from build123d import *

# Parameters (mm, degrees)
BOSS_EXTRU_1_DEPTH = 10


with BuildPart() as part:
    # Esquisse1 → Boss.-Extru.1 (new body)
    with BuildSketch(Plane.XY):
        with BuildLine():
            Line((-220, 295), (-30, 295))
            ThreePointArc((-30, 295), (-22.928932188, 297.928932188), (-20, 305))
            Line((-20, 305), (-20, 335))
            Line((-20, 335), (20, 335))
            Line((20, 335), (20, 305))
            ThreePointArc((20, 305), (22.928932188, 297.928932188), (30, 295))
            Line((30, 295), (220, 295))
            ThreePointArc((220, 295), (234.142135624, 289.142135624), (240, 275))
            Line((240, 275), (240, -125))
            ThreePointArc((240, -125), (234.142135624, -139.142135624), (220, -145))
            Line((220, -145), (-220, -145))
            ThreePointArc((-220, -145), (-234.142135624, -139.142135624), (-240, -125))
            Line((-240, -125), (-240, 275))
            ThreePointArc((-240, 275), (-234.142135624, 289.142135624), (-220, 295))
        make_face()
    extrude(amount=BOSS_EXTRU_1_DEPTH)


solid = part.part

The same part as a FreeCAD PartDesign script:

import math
import FreeCAD as App
import Part
import Sketcher
Q = App.Units.Quantity

doc = App.newDocument("Part")
params = doc.addObject("Spreadsheet::Sheet", "Params")
for row, (alias, value) in enumerate([
    ("sketch1_radius", "20 mm"),
    ("sketch1_radius2", "10 mm"),
    ("sketch1_width", "190 mm"),
    ("sketch1_width2", "440 mm"),
    ("sketch1_height", "400 mm"),
    ("pad1_length", "10 mm"),
], start=1):
    params.set(f"A{row}", alias)
    params.set(f"B{row}", "=" + value)
    params.setAlias(f"B{row}", alias)

body = doc.addObject("PartDesign::Body", "Body")

sketch1 = doc.addObject("Sketcher::SketchObject", "Sketch")
body.addObject(sketch1)
sketch1.AttachmentSupport = (doc.XY_Plane, [""])
sketch1.MapMode = "FlatFace"
sketch1.addGeometry(Part.LineSegment(App.Vector(-30, 295, 0), App.Vector(-220, 295, 0)), False)
sketch1.addGeometry(Part.ArcOfCircle(Part.Circle(App.Vector(-220, 275, 0), App.Vector(0, 0, 1), 20), math.radians(90), math.radians(180)), False)
sketch1.addGeometry(Part.LineSegment(App.Vector(-240, 275, 0), App.Vector(-240, -125, 0)), False)
sketch1.addGeometry(Part.ArcOfCircle(Part.Circle(App.Vector(-220, -125, 0), App.Vector(0, 0, 1), 20), math.radians(180), math.radians(270)), False)
sketch1.addGeometry(Part.LineSegment(App.Vector(-220, -145, 0), App.Vector(220, -145, 0)), False)
sketch1.addGeometry(Part.ArcOfCircle(Part.Circle(App.Vector(220, -125, 0), App.Vector(0, 0, 1), 20), math.radians(-90), math.radians(0)), False)
sketch1.addGeometry(Part.LineSegment(App.Vector(240, -125, 0), App.Vector(240, 275, 0)), False)
sketch1.addGeometry(Part.ArcOfCircle(Part.Circle(App.Vector(220, 275, 0), App.Vector(0, 0, 1), 20), math.radians(0), math.radians(90)), False)
sketch1.addGeometry(Part.LineSegment(App.Vector(220, 295, 0), App.Vector(30, 295, 0)), False)
sketch1.addGeometry(Part.ArcOfCircle(Part.Circle(App.Vector(30, 305, 0), App.Vector(0, 0, 1), 10), math.radians(180), math.radians(270)), False)
sketch1.addGeometry(Part.LineSegment(App.Vector(20, 305, 0), App.Vector(20, 335, 0)), False)
sketch1.addGeometry(Part.LineSegment(App.Vector(20, 335, 0), App.Vector(-20, 335, 0)), False)
sketch1.addGeometry(Part.LineSegment(App.Vector(-20, 335, 0), App.Vector(-20, 305, 0)), False)
sketch1.addGeometry(Part.ArcOfCircle(Part.Circle(App.Vector(-30, 305, 0), App.Vector(0, 0, 1), 10), math.radians(-90), math.radians(0)), False)
sketch1.addConstraint(Sketcher.Constraint("Tangent", 0, 2, 1, 1))
sketch1.addConstraint(Sketcher.Constraint("Tangent", 1, 2, 2, 1))
sketch1.addConstraint(Sketcher.Constraint("Tangent", 2, 2, 3, 1))
sketch1.addConstraint(Sketcher.Constraint("Tangent", 3, 2, 4, 1))
sketch1.addConstraint(Sketcher.Constraint("Tangent", 4, 2, 5, 1))
sketch1.addConstraint(Sketcher.Constraint("Tangent", 5, 2, 6, 1))
sketch1.addConstraint(Sketcher.Constraint("Tangent", 6, 2, 7, 1))
sketch1.addConstraint(Sketcher.Constraint("Tangent", 7, 2, 8, 1))
sketch1.addConstraint(Sketcher.Constraint("Tangent", 8, 2, 9, 2))
sketch1.addConstraint(Sketcher.Constraint("Tangent", 9, 1, 10, 1))
sketch1.addConstraint(Sketcher.Constraint("Coincident", 10, 2, 11, 1))
sketch1.addConstraint(Sketcher.Constraint("Coincident", 11, 2, 12, 1))
sketch1.addConstraint(Sketcher.Constraint("Tangent", 12, 2, 13, 2))
sketch1.addConstraint(Sketcher.Constraint("Tangent", 13, 1, 0, 1))
sketch1.addConstraint(Sketcher.Constraint("Horizontal", 0))
sketch1.addConstraint(Sketcher.Constraint("Vertical", 2))
sketch1.addConstraint(Sketcher.Constraint("Horizontal", 4))
sketch1.addConstraint(Sketcher.Constraint("Vertical", 6))
sketch1.addConstraint(Sketcher.Constraint("Horizontal", 8))
sketch1.addConstraint(Sketcher.Constraint("Vertical", 10))
sketch1.addConstraint(Sketcher.Constraint("Horizontal", 11))
sketch1.addConstraint(Sketcher.Constraint("Vertical", 12))
sketch1.addConstraint(Sketcher.Constraint("Equal", 1, 3))
sketch1.addConstraint(Sketcher.Constraint("Equal", 3, 5))
sketch1.addConstraint(Sketcher.Constraint("Equal", 5, 7))
sketch1.addConstraint(Sketcher.Constraint("Equal", 9, 13))
sketch1.addConstraint(Sketcher.Constraint("Symmetric", 1, 3, 7, 3, -2))
sketch1.addConstraint(Sketcher.Constraint("Equal", 0, 8))
sketch1.addConstraint(Sketcher.Constraint("Radius", 1, Q("20 mm")))
sketch1.addConstraint(Sketcher.Constraint("Radius", 9, Q("10 mm")))
sketch1.addConstraint(Sketcher.Constraint("DistanceX", 0, 2, 0, 1, Q("190 mm")))
sketch1.addConstraint(Sketcher.Constraint("DistanceX", 4, 1, 4, 2, Q("440 mm")))
sketch1.addConstraint(Sketcher.Constraint("DistanceY", 2, 2, 2, 1, Q("400 mm")))
sketch1.addConstraint(Sketcher.Constraint("DistanceY", 10, 1, 10, 2, Q("30 mm")))
sketch1.addConstraint(Sketcher.Constraint("DistanceY", -1, 1, 1, 3, Q("275 mm")))
sketch1.setExpression("Constraints[28]", "Params.sketch1_radius")
sketch1.setExpression("Constraints[29]", "Params.sketch1_radius2")
sketch1.setExpression("Constraints[30]", "Params.sketch1_width")
sketch1.setExpression("Constraints[31]", "Params.sketch1_width2")
sketch1.setExpression("Constraints[32]", "Params.sketch1_height")
pad1 = doc.addObject("PartDesign::Pad", "Pad")
body.addObject(pad1)
pad1.Profile = sketch1
pad1.setExpression("Length", "Params.pad1_length")

doc.recompute()
